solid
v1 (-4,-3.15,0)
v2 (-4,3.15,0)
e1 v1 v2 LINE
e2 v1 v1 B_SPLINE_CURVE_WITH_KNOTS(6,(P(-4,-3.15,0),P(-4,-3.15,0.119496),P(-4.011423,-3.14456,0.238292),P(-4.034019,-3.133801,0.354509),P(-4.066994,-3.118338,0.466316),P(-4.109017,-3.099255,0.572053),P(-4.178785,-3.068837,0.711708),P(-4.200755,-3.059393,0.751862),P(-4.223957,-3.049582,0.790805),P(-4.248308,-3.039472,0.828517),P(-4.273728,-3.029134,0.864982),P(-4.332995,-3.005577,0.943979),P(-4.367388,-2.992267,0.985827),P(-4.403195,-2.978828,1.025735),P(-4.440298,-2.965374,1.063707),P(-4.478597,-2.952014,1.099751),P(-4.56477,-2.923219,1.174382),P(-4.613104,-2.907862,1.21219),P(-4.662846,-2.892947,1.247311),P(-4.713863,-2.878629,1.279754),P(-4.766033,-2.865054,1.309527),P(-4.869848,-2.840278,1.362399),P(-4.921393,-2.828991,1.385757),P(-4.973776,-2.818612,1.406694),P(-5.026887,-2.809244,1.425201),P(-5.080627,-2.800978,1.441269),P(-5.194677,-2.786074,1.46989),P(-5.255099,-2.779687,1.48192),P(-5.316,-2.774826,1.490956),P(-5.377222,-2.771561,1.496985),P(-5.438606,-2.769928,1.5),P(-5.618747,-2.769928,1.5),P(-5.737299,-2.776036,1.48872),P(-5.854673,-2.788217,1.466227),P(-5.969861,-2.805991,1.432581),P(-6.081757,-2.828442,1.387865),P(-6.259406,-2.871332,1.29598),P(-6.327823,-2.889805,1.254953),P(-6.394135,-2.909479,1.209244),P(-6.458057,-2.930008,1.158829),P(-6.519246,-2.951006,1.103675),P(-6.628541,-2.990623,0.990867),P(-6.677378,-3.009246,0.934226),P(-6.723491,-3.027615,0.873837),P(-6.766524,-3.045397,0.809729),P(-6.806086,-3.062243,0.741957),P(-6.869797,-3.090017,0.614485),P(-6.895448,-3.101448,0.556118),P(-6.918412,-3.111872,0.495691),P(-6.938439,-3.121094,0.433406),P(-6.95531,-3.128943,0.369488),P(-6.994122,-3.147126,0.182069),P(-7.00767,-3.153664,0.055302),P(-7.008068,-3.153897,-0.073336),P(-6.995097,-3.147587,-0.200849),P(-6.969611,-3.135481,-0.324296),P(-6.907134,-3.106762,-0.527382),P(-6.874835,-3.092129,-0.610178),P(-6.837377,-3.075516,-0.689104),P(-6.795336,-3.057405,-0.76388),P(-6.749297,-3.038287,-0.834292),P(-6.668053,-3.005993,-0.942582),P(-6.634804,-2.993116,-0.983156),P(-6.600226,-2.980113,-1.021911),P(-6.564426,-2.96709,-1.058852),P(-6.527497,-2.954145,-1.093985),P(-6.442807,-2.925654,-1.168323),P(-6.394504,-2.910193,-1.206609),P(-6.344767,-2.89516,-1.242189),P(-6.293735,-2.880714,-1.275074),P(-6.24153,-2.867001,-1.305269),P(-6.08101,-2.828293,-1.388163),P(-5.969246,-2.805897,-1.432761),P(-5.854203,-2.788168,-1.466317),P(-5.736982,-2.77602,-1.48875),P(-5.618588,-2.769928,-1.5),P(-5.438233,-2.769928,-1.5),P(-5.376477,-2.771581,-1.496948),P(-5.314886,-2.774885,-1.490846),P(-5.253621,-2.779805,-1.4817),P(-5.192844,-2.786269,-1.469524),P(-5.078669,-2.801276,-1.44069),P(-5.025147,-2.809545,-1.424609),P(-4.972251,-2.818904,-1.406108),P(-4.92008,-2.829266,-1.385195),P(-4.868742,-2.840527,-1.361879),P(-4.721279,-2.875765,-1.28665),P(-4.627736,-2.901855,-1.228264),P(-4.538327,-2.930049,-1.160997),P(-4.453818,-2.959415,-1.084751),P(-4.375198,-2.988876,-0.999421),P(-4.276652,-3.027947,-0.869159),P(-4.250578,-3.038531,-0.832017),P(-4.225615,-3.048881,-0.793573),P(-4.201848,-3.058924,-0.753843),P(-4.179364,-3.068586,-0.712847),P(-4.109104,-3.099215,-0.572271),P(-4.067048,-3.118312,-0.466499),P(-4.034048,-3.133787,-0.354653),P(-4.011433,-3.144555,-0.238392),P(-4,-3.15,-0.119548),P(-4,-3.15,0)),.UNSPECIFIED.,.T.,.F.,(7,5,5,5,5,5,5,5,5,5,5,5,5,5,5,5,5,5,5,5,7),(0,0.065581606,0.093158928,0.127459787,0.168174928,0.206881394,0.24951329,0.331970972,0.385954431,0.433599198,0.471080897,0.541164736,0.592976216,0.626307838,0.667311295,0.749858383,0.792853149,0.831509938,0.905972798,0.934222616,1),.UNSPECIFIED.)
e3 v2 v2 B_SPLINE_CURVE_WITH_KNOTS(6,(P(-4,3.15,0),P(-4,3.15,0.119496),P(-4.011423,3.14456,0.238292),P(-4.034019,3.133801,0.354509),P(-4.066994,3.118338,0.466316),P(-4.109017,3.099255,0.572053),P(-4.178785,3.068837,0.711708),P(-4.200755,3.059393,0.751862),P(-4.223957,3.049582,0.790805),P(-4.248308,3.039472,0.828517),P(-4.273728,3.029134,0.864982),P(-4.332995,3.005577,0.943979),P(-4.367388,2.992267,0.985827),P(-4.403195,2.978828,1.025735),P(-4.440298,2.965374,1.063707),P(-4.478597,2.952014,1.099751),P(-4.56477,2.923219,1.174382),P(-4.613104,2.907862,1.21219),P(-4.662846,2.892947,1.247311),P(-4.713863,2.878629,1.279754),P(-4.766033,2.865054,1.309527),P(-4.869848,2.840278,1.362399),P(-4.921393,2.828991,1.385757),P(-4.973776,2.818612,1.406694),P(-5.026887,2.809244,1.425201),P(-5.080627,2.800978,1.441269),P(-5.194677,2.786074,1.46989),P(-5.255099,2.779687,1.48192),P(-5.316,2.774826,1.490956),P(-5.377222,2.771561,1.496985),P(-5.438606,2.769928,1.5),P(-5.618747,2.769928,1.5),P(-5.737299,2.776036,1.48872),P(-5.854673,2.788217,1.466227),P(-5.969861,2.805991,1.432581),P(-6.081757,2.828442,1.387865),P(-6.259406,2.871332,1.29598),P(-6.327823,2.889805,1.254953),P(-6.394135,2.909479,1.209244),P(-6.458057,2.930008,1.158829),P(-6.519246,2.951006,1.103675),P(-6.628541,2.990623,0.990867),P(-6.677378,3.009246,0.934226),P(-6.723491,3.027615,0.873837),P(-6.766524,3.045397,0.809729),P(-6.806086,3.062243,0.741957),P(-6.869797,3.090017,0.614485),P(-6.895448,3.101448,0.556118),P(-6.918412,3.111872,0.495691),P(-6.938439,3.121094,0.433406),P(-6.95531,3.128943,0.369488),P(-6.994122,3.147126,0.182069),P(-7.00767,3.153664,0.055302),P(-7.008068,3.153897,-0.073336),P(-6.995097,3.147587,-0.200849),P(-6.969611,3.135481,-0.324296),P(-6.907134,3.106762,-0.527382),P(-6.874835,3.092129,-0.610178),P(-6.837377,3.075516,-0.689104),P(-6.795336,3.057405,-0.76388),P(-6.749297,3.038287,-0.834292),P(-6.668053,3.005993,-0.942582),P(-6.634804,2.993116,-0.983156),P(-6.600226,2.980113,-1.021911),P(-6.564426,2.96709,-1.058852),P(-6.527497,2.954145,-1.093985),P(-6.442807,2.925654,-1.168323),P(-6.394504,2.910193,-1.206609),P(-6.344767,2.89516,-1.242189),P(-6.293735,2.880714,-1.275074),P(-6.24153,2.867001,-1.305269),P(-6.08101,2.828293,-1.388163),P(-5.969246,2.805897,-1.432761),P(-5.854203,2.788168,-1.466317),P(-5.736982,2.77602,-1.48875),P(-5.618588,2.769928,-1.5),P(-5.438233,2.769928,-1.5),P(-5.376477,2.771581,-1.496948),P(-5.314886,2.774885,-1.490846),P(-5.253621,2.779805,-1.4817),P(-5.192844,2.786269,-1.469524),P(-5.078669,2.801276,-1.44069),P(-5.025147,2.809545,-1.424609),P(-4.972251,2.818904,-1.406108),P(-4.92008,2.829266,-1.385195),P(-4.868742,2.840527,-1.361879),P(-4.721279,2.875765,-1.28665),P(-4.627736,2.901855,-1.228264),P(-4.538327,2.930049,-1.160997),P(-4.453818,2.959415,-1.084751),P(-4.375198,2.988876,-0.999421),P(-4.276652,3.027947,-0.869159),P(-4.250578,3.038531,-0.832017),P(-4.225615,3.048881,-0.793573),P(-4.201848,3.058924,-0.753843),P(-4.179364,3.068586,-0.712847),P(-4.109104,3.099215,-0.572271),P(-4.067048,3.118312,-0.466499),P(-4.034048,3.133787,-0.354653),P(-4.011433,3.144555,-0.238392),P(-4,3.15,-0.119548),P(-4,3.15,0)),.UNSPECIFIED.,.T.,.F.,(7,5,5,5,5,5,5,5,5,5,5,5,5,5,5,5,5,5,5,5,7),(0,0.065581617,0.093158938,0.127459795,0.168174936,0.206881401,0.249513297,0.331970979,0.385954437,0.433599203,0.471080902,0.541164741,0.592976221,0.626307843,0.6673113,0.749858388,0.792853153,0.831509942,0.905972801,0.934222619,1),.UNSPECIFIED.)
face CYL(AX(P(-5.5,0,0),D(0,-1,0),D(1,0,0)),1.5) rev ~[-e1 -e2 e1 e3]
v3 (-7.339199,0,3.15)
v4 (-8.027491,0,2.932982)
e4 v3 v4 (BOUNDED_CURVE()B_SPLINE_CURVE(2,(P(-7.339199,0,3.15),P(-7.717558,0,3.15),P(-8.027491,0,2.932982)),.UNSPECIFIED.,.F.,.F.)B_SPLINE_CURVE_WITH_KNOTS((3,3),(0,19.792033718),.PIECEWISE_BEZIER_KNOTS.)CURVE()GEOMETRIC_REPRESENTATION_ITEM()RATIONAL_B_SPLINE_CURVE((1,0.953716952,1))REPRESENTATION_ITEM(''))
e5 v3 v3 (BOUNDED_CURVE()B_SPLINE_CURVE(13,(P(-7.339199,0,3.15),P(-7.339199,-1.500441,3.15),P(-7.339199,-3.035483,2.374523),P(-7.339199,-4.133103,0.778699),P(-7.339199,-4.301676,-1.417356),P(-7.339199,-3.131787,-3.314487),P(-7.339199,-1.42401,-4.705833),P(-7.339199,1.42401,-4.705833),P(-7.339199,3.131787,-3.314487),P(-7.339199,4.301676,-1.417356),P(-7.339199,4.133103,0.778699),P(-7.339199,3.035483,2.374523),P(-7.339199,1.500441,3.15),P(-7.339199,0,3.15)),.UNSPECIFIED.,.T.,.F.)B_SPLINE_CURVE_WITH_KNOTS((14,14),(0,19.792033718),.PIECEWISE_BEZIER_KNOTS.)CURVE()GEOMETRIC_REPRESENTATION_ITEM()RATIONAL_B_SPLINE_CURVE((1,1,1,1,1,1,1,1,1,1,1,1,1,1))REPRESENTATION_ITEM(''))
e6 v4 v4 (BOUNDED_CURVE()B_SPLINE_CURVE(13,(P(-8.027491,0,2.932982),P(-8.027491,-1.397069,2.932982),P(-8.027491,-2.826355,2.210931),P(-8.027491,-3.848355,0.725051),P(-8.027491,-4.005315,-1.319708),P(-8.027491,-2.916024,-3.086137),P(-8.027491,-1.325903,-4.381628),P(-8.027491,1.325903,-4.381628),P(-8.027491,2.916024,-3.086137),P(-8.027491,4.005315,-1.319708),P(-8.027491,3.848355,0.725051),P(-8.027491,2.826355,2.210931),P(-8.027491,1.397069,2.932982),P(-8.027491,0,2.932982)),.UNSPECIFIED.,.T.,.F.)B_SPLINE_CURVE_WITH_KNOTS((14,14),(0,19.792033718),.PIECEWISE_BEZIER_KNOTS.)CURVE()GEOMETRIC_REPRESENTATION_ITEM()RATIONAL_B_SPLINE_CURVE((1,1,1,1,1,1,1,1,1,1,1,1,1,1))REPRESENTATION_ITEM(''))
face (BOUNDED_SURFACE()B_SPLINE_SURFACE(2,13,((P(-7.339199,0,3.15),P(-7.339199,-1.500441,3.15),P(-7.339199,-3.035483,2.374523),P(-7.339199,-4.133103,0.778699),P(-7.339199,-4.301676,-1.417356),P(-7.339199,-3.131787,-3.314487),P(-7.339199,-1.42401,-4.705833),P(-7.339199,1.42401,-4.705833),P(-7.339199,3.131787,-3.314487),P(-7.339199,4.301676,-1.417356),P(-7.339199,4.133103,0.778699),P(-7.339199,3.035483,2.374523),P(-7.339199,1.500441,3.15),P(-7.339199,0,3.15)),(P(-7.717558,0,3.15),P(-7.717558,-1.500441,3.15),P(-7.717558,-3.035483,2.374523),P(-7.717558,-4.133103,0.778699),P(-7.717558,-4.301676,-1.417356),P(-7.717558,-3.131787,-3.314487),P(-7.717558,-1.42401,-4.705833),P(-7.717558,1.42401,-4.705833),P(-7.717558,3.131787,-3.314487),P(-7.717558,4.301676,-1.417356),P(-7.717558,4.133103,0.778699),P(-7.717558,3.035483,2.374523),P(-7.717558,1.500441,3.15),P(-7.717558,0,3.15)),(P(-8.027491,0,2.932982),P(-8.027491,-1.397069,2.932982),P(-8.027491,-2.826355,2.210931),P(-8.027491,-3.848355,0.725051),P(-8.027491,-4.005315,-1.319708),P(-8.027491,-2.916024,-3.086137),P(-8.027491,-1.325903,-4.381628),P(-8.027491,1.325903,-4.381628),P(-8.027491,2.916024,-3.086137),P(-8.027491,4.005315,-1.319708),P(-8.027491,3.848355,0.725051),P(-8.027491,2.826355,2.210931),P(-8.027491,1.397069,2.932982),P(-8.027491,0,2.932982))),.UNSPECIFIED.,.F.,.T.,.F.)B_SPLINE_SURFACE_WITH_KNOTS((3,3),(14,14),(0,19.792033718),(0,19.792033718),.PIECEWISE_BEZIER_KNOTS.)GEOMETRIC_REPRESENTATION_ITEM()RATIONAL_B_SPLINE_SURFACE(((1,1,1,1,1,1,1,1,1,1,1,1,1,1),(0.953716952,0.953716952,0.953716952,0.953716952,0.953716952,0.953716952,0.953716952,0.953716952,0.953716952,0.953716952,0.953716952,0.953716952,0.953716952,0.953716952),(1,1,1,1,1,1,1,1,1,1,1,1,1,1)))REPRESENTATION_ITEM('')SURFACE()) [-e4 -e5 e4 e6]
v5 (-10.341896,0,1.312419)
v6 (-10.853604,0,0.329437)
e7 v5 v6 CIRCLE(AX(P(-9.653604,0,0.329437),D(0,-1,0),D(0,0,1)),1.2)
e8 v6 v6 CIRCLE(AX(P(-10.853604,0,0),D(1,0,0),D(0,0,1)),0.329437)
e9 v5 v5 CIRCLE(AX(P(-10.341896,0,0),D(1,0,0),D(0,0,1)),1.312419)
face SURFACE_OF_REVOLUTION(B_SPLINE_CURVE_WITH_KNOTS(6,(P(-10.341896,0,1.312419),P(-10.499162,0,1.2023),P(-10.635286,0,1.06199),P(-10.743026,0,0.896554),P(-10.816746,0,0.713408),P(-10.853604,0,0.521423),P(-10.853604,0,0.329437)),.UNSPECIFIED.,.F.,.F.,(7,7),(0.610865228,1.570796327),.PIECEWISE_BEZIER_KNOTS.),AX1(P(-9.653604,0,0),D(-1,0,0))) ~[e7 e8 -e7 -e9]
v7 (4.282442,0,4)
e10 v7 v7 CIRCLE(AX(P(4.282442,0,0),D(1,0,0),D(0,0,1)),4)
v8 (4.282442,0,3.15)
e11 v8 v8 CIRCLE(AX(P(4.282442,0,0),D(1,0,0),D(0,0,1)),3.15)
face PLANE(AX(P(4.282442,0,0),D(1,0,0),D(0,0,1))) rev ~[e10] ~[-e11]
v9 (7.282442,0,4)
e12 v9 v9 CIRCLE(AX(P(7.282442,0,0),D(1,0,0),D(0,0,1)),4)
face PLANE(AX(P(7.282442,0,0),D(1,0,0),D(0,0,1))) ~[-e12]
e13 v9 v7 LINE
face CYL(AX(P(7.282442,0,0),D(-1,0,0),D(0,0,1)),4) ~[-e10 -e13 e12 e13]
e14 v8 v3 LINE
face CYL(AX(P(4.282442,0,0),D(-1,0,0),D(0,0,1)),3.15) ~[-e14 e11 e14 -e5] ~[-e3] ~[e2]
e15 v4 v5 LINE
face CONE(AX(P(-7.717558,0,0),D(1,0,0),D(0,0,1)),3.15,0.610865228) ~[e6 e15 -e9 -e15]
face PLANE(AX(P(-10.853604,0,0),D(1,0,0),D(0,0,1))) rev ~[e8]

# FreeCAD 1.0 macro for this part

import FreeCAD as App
import Part
import Sketcher

V = App.Vector
Q = App.Units.Quantity


def edges_at(feature, points):
    """Names of the edges that pass closest to the given points."""
    edges = feature.Shape.Edges
    near = lambda p: min(range(len(edges)), key=lambda i: edges[i].distToShape(Part.Vertex(*p))[0])
    return sorted({f"Edge{near(p) + 1}" for p in points})

doc = App.newDocument("Part")
body = doc.addObject("PartDesign::Body", "Body")

# Sketch on XZ plane
sketch1 = body.newObject("Sketcher::SketchObject", "Sketch")
sketch1.AttachmentSupport = (doc.getObject("XZ_Plane"), [""])
sketch1.MapMode = "FlatFace"
sketch1.addGeometry([
    Part.LineSegment(V(4.3, 3.1, 0), V(-7.7, 3.1, 0)),  # 0
    Part.LineSegment(V(-7.7, 3.1, 0), V(-10.9, 1, 0)),  # 1
    Part.LineSegment(V(-10.9, 1, 0), V(-10.9, 0, 0)),  # 2
    Part.LineSegment(V(-10.9, 0, 0), V(7.3, 0, 0)),  # 3
    Part.LineSegment(V(7.3, 0, 0), V(7.3, 4, 0)),  # 4
    Part.LineSegment(V(7.3, 4, 0), V(4.3, 4, 0)),  # 5
    Part.LineSegment(V(4.3, 4, 0), V(4.3, 3.1, 0)),  # 6
], False)
sketch1.addConstraint([
    Sketcher.Constraint("Coincident", 0, 2, 1, 1),
    Sketcher.Constraint("Coincident", 1, 2, 2, 1),
    Sketcher.Constraint("Coincident", 2, 2, 3, 1),
    Sketcher.Constraint("Coincident", 3, 2, 4, 1),
    Sketcher.Constraint("Coincident", 4, 2, 5, 1),
    Sketcher.Constraint("Coincident", 5, 2, 6, 1),
    Sketcher.Constraint("Coincident", 6, 2, 0, 1),
    Sketcher.Constraint("Horizontal", 0),
    Sketcher.Constraint("Vertical", 2),
    Sketcher.Constraint("Horizontal", 3),
    Sketcher.Constraint("Vertical", 4),
    Sketcher.Constraint("Horizontal", 5),
    Sketcher.Constraint("Vertical", 6),
    Sketcher.Constraint("PointOnObject", 2, 2, -1),
    Sketcher.Constraint("DistanceX", 0, 2, 0, 1, Q("12 mm")),
    Sketcher.Constraint("DistanceX", 5, 2, 5, 1, Q("3 mm")),
    Sketcher.Constraint("DistanceY", 4, 1, 4, 2, Q("4 mm")),
    Sketcher.Constraint("Angle", 1, Q("-145.000001 deg")),
    Sketcher.Constraint("DistanceY", 6, 2, 6, 1, Q("0.85 mm")),
    Sketcher.Constraint("DistanceX", 3, 1, 3, 2, Q("18.136046 mm")),
    Sketcher.Constraint("DistanceX", 0, 2, -1, 1, Q("7.717558 mm")),
])
revolution = body.newObject("PartDesign::Revolution", "Revolution")
revolution.Profile = sketch1
revolution.ReferenceAxis = (sketch1, ["H_Axis"])
revolution.Angle = 360
doc.recompute()

fillet = body.newObject("PartDesign::Fillet", "Fillet")
fillet.Base = (revolution, edges_at(revolution, [(-10.854, 0, -0.954), (-7.718, 0, -3.15)]))
fillet.Radius = 1.2

# Sketch on XZ plane
sketch2 = body.newObject("Sketcher::SketchObject", "Sketch001")
sketch2.AttachmentSupport = (doc.getObject("XZ_Plane"), [""])
sketch2.MapMode = "FlatFace"
sketch2.addGeometry(Part.Circle(V(-5.5, 0, 0), V(0, 0, 1), 1.5), False)
sketch2.addConstraint([
    Sketcher.Constraint("PointOnObject", 0, 3, -1),
    Sketcher.Constraint("Diameter", 0, Q("3 mm")),
    Sketcher.Constraint("DistanceX", 0, 3, -1, 1, Q("5.5 mm")),
])
pocket1 = body.newObject("PartDesign::Pocket", "Pocket")
pocket1.Profile = sketch2
pocket1.Type = "ThroughAll"
pocket1.Reversed = True

# Sketch on XZ plane
sketch3 = body.newObject("Sketcher::SketchObject", "Sketch002")
sketch3.AttachmentSupport = (doc.getObject("XZ_Plane"), [""])
sketch3.MapMode = "FlatFace"
sketch3.addGeometry(Part.Circle(V(-5.5, 0, 0), V(0, 0, 1), 1.5), False)
sketch3.addConstraint([
    Sketcher.Constraint("PointOnObject", 0, 3, -1),
    Sketcher.Constraint("Diameter", 0, Q("3 mm")),
    Sketcher.Constraint("DistanceX", 0, 3, -1, 1, Q("5.5 mm")),
])
pocket2 = body.newObject("PartDesign::Pocket", "Pocket001")
pocket2.Profile = sketch3
pocket2.Type = "ThroughAll"

doc.recompute()
